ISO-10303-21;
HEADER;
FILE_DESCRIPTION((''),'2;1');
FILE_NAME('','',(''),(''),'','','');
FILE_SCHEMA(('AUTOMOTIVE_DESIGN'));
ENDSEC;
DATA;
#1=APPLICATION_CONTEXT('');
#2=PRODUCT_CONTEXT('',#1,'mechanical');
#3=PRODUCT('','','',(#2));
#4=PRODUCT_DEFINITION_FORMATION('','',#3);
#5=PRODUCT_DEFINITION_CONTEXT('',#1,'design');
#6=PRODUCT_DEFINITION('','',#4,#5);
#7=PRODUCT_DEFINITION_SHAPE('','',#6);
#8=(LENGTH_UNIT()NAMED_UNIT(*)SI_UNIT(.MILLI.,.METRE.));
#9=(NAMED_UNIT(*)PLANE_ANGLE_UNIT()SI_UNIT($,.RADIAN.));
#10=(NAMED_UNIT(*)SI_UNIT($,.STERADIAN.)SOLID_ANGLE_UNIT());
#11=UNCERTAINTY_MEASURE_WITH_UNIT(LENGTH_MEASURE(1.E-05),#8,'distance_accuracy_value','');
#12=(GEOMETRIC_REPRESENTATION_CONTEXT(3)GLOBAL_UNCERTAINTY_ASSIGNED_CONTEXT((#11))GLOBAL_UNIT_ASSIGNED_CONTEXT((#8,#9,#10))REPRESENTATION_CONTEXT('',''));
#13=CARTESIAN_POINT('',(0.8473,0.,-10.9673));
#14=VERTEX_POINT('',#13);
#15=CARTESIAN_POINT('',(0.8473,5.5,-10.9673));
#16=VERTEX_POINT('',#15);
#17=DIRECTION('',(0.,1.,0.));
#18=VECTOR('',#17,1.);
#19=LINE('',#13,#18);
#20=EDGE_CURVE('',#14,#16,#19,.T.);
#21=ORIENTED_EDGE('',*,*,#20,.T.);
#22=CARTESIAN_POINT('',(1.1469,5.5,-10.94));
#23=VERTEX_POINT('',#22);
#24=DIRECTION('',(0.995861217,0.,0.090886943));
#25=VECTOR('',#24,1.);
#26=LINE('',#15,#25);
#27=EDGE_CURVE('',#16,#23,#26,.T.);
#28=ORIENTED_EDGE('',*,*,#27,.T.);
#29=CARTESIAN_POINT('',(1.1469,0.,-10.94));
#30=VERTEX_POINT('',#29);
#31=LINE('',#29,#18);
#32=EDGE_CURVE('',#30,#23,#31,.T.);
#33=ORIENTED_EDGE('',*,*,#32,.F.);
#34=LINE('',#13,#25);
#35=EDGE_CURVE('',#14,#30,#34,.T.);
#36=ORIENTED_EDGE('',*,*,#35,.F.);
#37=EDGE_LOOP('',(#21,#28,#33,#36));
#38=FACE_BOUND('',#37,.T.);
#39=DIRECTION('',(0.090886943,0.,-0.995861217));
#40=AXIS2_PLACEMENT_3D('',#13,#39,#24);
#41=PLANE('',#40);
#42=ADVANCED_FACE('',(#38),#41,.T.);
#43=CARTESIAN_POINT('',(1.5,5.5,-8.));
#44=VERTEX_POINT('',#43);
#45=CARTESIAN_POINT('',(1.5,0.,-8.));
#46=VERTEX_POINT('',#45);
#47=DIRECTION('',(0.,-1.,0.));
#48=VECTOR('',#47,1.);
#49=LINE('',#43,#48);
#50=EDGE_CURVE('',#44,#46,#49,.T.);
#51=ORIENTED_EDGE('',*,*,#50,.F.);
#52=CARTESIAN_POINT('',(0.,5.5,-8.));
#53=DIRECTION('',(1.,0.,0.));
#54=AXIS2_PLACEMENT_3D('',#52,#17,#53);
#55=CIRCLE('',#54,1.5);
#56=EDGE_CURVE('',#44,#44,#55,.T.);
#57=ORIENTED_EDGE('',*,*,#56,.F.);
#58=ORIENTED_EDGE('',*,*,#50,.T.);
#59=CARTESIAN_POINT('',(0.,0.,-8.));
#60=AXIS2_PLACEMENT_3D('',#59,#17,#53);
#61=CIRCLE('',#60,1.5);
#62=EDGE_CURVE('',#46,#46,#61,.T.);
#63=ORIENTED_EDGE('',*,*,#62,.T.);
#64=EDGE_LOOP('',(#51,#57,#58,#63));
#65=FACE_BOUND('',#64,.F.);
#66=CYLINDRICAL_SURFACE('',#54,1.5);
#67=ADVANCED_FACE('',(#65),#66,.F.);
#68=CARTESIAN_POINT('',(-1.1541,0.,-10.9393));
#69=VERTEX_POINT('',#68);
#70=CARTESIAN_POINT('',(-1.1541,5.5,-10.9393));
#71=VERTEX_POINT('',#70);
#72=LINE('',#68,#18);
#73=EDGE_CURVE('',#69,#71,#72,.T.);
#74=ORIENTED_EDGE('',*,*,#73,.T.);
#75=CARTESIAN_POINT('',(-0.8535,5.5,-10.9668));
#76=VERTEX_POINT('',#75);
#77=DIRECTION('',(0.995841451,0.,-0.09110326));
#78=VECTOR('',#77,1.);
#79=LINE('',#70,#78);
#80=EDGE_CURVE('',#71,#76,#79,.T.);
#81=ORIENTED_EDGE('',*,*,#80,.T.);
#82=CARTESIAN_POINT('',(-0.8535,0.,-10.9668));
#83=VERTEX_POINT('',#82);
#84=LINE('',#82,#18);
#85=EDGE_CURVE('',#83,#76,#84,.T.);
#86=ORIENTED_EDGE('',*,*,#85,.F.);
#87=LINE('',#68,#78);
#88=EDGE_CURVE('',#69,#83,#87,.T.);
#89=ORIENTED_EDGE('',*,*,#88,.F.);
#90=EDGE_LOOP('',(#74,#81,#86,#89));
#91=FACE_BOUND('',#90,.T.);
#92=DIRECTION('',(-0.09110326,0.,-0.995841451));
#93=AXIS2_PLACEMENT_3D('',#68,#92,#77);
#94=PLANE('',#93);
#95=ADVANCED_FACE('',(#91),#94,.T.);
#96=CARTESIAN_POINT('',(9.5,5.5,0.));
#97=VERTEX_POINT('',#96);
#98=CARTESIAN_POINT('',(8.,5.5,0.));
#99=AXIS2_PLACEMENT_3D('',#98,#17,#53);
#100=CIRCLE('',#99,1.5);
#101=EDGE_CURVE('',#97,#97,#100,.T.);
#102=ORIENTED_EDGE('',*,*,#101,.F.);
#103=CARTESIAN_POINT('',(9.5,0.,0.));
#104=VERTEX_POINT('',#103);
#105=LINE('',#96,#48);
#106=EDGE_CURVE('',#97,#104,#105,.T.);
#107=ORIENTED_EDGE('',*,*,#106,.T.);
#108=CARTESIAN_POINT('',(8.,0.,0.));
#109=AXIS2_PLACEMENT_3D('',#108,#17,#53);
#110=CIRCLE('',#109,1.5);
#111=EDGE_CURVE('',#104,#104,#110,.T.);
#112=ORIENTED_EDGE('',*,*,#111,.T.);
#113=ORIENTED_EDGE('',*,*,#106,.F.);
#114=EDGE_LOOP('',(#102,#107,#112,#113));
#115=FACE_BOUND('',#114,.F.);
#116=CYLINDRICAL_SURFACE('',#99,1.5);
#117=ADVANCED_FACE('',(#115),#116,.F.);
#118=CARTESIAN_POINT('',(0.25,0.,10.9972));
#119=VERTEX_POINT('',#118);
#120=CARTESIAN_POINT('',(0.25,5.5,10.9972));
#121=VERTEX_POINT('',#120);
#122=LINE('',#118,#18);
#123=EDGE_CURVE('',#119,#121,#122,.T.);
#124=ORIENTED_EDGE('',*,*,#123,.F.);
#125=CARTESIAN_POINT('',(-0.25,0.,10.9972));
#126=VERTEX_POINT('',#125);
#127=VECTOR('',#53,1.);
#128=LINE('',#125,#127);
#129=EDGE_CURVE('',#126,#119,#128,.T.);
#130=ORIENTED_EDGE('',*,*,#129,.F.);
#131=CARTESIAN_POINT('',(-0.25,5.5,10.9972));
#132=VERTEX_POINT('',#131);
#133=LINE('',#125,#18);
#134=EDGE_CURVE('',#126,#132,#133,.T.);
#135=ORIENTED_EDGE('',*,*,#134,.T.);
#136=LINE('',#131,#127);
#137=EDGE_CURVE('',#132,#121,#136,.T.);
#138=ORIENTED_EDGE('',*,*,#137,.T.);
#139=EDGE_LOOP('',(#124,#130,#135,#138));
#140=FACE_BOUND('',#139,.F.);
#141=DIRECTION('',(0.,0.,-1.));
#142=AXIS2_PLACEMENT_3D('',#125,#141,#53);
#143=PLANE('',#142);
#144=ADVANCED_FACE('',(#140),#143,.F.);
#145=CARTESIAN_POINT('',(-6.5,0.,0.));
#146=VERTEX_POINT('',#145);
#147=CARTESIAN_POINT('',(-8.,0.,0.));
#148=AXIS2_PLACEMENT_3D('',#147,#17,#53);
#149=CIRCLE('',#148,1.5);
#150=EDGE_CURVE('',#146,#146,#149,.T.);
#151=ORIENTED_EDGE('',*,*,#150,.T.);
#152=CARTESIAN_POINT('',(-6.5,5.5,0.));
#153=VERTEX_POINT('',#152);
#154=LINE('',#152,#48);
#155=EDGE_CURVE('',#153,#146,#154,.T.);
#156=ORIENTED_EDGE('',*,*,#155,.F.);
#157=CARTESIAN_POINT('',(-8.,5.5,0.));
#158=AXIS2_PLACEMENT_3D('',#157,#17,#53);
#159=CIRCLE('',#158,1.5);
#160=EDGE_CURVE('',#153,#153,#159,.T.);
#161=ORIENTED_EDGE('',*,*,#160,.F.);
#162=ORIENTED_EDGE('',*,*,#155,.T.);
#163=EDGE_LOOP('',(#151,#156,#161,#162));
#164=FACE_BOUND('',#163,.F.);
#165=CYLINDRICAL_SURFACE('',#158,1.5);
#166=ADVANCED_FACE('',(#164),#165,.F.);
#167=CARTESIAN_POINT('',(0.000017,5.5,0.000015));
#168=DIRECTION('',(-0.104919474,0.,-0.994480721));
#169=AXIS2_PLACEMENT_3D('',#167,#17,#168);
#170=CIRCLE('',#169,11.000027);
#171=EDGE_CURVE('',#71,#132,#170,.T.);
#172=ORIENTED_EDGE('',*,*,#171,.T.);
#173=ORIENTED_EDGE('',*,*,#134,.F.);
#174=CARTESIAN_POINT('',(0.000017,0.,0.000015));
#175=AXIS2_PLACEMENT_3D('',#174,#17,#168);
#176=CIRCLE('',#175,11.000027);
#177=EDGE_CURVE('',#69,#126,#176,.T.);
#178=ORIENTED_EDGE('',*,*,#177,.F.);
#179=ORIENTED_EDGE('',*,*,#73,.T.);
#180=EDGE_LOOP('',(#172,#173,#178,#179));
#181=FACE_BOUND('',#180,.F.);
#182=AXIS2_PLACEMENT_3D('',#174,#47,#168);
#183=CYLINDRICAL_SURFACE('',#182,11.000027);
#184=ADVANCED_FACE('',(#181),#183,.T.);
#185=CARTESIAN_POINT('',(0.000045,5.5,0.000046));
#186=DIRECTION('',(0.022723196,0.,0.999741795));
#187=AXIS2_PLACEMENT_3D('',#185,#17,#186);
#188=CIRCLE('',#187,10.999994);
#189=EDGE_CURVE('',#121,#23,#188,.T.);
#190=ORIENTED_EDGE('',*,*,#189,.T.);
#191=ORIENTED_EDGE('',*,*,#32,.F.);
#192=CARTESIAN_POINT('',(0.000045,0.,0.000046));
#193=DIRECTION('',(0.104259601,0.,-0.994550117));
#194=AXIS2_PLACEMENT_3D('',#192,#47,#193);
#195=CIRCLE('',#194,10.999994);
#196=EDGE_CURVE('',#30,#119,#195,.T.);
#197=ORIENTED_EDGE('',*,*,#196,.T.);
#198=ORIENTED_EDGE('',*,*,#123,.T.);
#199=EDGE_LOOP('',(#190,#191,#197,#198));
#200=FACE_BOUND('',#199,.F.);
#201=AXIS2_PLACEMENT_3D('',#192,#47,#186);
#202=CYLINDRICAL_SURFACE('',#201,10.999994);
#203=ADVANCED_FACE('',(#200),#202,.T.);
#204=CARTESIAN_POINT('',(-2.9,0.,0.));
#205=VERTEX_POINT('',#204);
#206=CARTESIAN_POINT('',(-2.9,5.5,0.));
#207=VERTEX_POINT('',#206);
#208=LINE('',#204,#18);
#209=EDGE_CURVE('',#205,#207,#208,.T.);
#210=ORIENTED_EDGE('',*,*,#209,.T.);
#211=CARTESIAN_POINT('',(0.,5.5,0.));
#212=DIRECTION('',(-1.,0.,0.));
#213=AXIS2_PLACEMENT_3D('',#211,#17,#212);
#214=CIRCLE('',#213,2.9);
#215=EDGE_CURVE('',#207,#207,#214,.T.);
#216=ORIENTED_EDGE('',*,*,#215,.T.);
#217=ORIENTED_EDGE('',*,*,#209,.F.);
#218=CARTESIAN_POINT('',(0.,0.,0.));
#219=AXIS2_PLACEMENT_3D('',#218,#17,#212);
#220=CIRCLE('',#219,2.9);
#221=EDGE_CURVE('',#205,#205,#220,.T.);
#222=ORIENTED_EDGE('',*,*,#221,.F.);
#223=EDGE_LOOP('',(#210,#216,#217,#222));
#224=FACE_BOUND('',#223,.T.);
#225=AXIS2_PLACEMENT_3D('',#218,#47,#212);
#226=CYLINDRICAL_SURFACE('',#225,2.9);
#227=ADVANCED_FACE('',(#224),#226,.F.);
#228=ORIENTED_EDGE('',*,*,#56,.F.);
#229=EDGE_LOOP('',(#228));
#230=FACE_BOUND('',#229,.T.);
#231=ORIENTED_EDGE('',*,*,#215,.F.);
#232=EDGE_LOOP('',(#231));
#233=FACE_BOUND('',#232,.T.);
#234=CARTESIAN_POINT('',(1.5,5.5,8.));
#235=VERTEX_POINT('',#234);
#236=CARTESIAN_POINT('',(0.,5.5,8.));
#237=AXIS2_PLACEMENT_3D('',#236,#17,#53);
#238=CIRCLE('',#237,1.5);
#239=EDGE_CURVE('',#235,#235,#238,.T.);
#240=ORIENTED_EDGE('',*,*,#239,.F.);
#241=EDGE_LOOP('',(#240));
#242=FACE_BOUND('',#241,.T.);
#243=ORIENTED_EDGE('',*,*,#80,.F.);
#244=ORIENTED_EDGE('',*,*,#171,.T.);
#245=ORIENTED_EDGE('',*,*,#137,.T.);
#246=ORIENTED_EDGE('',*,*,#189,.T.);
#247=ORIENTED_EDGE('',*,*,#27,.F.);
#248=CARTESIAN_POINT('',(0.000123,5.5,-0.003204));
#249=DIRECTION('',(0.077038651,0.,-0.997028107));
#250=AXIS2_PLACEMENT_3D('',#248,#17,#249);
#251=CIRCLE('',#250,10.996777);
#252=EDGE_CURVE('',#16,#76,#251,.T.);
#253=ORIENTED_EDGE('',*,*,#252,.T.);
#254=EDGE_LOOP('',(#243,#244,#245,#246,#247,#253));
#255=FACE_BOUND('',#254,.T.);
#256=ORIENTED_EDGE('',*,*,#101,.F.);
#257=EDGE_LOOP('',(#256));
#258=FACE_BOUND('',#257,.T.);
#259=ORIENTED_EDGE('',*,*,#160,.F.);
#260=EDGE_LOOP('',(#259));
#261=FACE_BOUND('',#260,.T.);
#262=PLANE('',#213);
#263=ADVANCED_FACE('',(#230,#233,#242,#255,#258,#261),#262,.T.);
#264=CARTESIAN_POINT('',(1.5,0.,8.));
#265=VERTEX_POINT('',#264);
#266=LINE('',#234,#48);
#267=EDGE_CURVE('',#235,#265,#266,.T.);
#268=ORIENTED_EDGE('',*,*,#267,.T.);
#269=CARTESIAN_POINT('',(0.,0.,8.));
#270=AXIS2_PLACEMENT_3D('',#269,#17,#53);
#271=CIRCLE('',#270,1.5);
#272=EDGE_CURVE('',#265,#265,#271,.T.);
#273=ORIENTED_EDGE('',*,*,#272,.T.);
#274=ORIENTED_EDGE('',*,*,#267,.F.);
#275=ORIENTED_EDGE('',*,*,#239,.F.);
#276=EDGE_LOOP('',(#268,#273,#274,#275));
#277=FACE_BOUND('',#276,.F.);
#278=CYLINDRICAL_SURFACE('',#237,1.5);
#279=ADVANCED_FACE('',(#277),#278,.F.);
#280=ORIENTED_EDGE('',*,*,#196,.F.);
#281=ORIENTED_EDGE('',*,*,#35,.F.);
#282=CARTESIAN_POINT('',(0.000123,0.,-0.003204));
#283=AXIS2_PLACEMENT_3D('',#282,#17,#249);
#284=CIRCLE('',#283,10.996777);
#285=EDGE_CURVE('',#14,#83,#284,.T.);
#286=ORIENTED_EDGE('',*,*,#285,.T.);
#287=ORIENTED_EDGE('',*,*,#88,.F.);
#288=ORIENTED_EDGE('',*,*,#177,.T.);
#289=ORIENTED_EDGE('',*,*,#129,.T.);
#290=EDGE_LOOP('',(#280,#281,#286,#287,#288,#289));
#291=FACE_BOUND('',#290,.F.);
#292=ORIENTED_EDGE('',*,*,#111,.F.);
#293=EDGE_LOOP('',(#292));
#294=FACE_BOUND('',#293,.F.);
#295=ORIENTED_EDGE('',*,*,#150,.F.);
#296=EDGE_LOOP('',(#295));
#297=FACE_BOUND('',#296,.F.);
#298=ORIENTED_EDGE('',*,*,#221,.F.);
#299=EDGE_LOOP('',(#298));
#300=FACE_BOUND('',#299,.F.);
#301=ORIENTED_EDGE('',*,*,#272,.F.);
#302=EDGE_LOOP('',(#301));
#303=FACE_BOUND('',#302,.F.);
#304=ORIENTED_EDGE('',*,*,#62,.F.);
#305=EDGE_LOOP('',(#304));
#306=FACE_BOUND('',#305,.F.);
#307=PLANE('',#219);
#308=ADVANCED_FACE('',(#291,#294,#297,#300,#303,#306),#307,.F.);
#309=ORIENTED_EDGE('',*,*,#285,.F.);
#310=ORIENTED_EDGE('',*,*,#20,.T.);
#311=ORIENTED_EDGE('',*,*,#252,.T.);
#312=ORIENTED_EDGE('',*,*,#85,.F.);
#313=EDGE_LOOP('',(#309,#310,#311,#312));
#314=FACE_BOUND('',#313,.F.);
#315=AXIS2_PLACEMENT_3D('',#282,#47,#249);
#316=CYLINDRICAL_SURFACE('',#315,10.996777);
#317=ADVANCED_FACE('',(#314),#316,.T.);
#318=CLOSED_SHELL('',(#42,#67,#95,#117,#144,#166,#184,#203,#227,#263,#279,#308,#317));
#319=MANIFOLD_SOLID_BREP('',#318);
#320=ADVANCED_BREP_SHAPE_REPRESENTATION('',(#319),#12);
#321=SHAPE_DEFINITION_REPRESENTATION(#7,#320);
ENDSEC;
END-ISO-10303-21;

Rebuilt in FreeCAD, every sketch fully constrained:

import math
import FreeCAD as App
import Part
import Sketcher
Q = App.Units.Quantity

doc = App.newDocument("Part")
body = doc.addObject("PartDesign::Body", "Body")

sketch1 = body.newObject("Sketcher::SketchObject", "Sketch")
sketch1.AttachmentSupport = (doc.getObject("XZ_Plane"), [""])
sketch1.MapMode = "FlatFace"
sketch1.addGeometry(Part.ArcOfCircle(Part.Circle(App.Vector(0, 0, 0), App.Vector(0, 0, 1), 11), math.radians(91), math.radians(264)), False)
sketch1.addGeometry(Part.LineSegment(App.Vector(-0.25, 11, 0), App.Vector(0.25, 11, 0)), False)
sketch1.addGeometry(Part.ArcOfCircle(Part.Circle(App.Vector(0, 0, 0), App.Vector(0, 0, 1), 11), math.radians(-84), math.radians(89)), False)
sketch1.addGeometry(Part.LineSegment(App.Vector(1.15, -10.94, 0), App.Vector(0.85, -10.97, 0)), False)
sketch1.addGeometry(Part.ArcOfCircle(Part.Circle(App.Vector(0, 0, 0), App.Vector(0, 0, 1), 11), math.radians(-94.45), math.radians(-85.58)), False)
sketch1.addGeometry(Part.LineSegment(App.Vector(-0.85, -10.97, 0), App.Vector(-1.15, -10.94, 0)), False)
sketch1.addGeometry(Part.Circle(App.Vector(0, 8, 0), App.Vector(0, 0, 1), 1.25), False)
sketch1.addGeometry(Part.Circle(App.Vector(0, -8, 0), App.Vector(0, 0, 1), 1.25), False)
sketch1.addGeometry(Part.Circle(App.Vector(8, 0, 0), App.Vector(0, 0, 1), 1.25), False)
sketch1.addGeometry(Part.Circle(App.Vector(0, 0, 0), App.Vector(0, 0, 1), 2.9), False)
sketch1.addGeometry(Part.Circle(App.Vector(-8, 0, 0), App.Vector(0, 0, 1), 1.25), False)
sketch1.addConstraint(Sketcher.Constraint("Coincident", 0, 1, 1, 1))
sketch1.addConstraint(Sketcher.Constraint("Coincident", 1, 2, 2, 2))
sketch1.addConstraint(Sketcher.Constraint("Coincident", 2, 1, 3, 1))
sketch1.addConstraint(Sketcher.Constraint("Coincident", 3, 2, 4, 2))
sketch1.addConstraint(Sketcher.Constraint("Coincident", 4, 1, 5, 1))
sketch1.addConstraint(Sketcher.Constraint("Coincident", 5, 2, 0, 2))
sketch1.addConstraint(Sketcher.Constraint("Horizontal", 1))
sketch1.addConstraint(Sketcher.Constraint("Coincident", 0, 3, -1, 1))
sketch1.addConstraint(Sketcher.Constraint("Coincident", 2, 3, -1, 1))
sketch1.addConstraint(Sketcher.Constraint("Coincident", 9, 3, -1, 1))
sketch1.addConstraint(Sketcher.Constraint("Equal", 0, 2))
sketch1.addConstraint(Sketcher.Constraint("Equal", 6, 7))
sketch1.addConstraint(Sketcher.Constraint("Equal", 7, 8))
sketch1.addConstraint(Sketcher.Constraint("Equal", 8, 10))
sketch1.addConstraint(Sketcher.Constraint("Symmetric", 6, 3, 7, 3, -1, 1))
sketch1.addConstraint(Sketcher.Constraint("Symmetric", 8, 3, 10, 3, -1, 1))
sketch1.addConstraint(Sketcher.Constraint("PointOnObject", 4, 3, -2))
sketch1.addConstraint(Sketcher.Constraint("PointOnObject", 6, 3, -2))
sketch1.addConstraint(Sketcher.Constraint("PointOnObject", 8, 3, -1))
sketch1.addConstraint(Sketcher.Constraint("Radius", 0, Q("11 mm")))
sketch1.addConstraint(Sketcher.Constraint("Diameter", 6, Q("2.5 mm")))
sketch1.addConstraint(Sketcher.Constraint("Diameter", 9, Q("5.8 mm")))
sketch1.addConstraint(Sketcher.Constraint("DistanceX", 1, 1, 1, 2, Q("0.5 mm")))
sketch1.addConstraint(Sketcher.Constraint("DistanceY", -1, 1, 6, 3, Q("8 mm")))
sketch1.addConstraint(Sketcher.Constraint("DistanceX", -1, 1, 8, 3, Q("8 mm")))
sketch1.addConstraint(Sketcher.Constraint("Radius", 4, Q("10.9968 mm")))
sketch1.addConstraint(Sketcher.Constraint("DistanceY", 2, 1, -1, 1, Q("10.94 mm")))
sketch1.addConstraint(Sketcher.Constraint("DistanceX", 5, 2, -1, 1, Q("1.154 mm")))
sketch1.addConstraint(Sketcher.Constraint("DistanceY", 3, 2, 4, 3, Q("10.964 mm")))
sketch1.addConstraint(Sketcher.Constraint("DistanceY", 3, 2, 5, 2, Q("0.028 mm")))
sketch1.addConstraint(Sketcher.Constraint("Distance", 5, Q("0.3019 mm")))
pad1 = body.newObject("PartDesign::Pad", "Pad")
pad1.Profile = sketch1
pad1.Length = 5.5
pad1.Reversed = True

sketch2 = body.newObject("Sketcher::SketchObject", "Sketch001")
sketch2.AttachmentSupport = (doc.getObject("XZ_Plane"), [""])
sketch2.MapMode = "FlatFace"
sketch2.AttachmentOffset = App.Placement(App.Vector(0, 0, -5.5), App.Rotation())
sketch2.addGeometry(Part.Circle(App.Vector(0, 8, 0), App.Vector(0, 0, 1), 1.5), False)
sketch2.addGeometry(Part.Circle(App.Vector(-8, 0, 0), App.Vector(0, 0, 1), 1.5), False)
sketch2.addGeometry(Part.Circle(App.Vector(0, -8, 0), App.Vector(0, 0, 1), 1.5), False)
sketch2.addGeometry(Part.Circle(App.Vector(8, 0, 0), App.Vector(0, 0, 1), 1.5), False)
sketch2.addConstraint(Sketcher.Constraint("Equal", 0, 1))
sketch2.addConstraint(Sketcher.Constraint("Equal", 1, 2))
sketch2.addConstraint(Sketcher.Constraint("Equal", 2, 3))
sketch2.addConstraint(Sketcher.Constraint("Symmetric", 0, 3, 2, 3, -1, 1))
sketch2.addConstraint(Sketcher.Constraint("Symmetric", 1, 3, 3, 3, -1, 1))
sketch2.addConstraint(Sketcher.Constraint("PointOnObject", 0, 3, -2))
sketch2.addConstraint(Sketcher.Constraint("PointOnObject", 1, 3, -1))
sketch2.addConstraint(Sketcher.Constraint("Diameter", 0, Q("3 mm")))
sketch2.addConstraint(Sketcher.Constraint("DistanceY", -1, 1, 0, 3, Q("8 mm")))
sketch2.addConstraint(Sketcher.Constraint("DistanceX", 1, 3, -1, 1, Q("8 mm")))
pocket1 = body.newObject("PartDesign::Pocket", "Pocket")
pocket1.Profile = sketch2
pocket1.Length = 10
pocket1.Reversed = True

doc.recompute()
